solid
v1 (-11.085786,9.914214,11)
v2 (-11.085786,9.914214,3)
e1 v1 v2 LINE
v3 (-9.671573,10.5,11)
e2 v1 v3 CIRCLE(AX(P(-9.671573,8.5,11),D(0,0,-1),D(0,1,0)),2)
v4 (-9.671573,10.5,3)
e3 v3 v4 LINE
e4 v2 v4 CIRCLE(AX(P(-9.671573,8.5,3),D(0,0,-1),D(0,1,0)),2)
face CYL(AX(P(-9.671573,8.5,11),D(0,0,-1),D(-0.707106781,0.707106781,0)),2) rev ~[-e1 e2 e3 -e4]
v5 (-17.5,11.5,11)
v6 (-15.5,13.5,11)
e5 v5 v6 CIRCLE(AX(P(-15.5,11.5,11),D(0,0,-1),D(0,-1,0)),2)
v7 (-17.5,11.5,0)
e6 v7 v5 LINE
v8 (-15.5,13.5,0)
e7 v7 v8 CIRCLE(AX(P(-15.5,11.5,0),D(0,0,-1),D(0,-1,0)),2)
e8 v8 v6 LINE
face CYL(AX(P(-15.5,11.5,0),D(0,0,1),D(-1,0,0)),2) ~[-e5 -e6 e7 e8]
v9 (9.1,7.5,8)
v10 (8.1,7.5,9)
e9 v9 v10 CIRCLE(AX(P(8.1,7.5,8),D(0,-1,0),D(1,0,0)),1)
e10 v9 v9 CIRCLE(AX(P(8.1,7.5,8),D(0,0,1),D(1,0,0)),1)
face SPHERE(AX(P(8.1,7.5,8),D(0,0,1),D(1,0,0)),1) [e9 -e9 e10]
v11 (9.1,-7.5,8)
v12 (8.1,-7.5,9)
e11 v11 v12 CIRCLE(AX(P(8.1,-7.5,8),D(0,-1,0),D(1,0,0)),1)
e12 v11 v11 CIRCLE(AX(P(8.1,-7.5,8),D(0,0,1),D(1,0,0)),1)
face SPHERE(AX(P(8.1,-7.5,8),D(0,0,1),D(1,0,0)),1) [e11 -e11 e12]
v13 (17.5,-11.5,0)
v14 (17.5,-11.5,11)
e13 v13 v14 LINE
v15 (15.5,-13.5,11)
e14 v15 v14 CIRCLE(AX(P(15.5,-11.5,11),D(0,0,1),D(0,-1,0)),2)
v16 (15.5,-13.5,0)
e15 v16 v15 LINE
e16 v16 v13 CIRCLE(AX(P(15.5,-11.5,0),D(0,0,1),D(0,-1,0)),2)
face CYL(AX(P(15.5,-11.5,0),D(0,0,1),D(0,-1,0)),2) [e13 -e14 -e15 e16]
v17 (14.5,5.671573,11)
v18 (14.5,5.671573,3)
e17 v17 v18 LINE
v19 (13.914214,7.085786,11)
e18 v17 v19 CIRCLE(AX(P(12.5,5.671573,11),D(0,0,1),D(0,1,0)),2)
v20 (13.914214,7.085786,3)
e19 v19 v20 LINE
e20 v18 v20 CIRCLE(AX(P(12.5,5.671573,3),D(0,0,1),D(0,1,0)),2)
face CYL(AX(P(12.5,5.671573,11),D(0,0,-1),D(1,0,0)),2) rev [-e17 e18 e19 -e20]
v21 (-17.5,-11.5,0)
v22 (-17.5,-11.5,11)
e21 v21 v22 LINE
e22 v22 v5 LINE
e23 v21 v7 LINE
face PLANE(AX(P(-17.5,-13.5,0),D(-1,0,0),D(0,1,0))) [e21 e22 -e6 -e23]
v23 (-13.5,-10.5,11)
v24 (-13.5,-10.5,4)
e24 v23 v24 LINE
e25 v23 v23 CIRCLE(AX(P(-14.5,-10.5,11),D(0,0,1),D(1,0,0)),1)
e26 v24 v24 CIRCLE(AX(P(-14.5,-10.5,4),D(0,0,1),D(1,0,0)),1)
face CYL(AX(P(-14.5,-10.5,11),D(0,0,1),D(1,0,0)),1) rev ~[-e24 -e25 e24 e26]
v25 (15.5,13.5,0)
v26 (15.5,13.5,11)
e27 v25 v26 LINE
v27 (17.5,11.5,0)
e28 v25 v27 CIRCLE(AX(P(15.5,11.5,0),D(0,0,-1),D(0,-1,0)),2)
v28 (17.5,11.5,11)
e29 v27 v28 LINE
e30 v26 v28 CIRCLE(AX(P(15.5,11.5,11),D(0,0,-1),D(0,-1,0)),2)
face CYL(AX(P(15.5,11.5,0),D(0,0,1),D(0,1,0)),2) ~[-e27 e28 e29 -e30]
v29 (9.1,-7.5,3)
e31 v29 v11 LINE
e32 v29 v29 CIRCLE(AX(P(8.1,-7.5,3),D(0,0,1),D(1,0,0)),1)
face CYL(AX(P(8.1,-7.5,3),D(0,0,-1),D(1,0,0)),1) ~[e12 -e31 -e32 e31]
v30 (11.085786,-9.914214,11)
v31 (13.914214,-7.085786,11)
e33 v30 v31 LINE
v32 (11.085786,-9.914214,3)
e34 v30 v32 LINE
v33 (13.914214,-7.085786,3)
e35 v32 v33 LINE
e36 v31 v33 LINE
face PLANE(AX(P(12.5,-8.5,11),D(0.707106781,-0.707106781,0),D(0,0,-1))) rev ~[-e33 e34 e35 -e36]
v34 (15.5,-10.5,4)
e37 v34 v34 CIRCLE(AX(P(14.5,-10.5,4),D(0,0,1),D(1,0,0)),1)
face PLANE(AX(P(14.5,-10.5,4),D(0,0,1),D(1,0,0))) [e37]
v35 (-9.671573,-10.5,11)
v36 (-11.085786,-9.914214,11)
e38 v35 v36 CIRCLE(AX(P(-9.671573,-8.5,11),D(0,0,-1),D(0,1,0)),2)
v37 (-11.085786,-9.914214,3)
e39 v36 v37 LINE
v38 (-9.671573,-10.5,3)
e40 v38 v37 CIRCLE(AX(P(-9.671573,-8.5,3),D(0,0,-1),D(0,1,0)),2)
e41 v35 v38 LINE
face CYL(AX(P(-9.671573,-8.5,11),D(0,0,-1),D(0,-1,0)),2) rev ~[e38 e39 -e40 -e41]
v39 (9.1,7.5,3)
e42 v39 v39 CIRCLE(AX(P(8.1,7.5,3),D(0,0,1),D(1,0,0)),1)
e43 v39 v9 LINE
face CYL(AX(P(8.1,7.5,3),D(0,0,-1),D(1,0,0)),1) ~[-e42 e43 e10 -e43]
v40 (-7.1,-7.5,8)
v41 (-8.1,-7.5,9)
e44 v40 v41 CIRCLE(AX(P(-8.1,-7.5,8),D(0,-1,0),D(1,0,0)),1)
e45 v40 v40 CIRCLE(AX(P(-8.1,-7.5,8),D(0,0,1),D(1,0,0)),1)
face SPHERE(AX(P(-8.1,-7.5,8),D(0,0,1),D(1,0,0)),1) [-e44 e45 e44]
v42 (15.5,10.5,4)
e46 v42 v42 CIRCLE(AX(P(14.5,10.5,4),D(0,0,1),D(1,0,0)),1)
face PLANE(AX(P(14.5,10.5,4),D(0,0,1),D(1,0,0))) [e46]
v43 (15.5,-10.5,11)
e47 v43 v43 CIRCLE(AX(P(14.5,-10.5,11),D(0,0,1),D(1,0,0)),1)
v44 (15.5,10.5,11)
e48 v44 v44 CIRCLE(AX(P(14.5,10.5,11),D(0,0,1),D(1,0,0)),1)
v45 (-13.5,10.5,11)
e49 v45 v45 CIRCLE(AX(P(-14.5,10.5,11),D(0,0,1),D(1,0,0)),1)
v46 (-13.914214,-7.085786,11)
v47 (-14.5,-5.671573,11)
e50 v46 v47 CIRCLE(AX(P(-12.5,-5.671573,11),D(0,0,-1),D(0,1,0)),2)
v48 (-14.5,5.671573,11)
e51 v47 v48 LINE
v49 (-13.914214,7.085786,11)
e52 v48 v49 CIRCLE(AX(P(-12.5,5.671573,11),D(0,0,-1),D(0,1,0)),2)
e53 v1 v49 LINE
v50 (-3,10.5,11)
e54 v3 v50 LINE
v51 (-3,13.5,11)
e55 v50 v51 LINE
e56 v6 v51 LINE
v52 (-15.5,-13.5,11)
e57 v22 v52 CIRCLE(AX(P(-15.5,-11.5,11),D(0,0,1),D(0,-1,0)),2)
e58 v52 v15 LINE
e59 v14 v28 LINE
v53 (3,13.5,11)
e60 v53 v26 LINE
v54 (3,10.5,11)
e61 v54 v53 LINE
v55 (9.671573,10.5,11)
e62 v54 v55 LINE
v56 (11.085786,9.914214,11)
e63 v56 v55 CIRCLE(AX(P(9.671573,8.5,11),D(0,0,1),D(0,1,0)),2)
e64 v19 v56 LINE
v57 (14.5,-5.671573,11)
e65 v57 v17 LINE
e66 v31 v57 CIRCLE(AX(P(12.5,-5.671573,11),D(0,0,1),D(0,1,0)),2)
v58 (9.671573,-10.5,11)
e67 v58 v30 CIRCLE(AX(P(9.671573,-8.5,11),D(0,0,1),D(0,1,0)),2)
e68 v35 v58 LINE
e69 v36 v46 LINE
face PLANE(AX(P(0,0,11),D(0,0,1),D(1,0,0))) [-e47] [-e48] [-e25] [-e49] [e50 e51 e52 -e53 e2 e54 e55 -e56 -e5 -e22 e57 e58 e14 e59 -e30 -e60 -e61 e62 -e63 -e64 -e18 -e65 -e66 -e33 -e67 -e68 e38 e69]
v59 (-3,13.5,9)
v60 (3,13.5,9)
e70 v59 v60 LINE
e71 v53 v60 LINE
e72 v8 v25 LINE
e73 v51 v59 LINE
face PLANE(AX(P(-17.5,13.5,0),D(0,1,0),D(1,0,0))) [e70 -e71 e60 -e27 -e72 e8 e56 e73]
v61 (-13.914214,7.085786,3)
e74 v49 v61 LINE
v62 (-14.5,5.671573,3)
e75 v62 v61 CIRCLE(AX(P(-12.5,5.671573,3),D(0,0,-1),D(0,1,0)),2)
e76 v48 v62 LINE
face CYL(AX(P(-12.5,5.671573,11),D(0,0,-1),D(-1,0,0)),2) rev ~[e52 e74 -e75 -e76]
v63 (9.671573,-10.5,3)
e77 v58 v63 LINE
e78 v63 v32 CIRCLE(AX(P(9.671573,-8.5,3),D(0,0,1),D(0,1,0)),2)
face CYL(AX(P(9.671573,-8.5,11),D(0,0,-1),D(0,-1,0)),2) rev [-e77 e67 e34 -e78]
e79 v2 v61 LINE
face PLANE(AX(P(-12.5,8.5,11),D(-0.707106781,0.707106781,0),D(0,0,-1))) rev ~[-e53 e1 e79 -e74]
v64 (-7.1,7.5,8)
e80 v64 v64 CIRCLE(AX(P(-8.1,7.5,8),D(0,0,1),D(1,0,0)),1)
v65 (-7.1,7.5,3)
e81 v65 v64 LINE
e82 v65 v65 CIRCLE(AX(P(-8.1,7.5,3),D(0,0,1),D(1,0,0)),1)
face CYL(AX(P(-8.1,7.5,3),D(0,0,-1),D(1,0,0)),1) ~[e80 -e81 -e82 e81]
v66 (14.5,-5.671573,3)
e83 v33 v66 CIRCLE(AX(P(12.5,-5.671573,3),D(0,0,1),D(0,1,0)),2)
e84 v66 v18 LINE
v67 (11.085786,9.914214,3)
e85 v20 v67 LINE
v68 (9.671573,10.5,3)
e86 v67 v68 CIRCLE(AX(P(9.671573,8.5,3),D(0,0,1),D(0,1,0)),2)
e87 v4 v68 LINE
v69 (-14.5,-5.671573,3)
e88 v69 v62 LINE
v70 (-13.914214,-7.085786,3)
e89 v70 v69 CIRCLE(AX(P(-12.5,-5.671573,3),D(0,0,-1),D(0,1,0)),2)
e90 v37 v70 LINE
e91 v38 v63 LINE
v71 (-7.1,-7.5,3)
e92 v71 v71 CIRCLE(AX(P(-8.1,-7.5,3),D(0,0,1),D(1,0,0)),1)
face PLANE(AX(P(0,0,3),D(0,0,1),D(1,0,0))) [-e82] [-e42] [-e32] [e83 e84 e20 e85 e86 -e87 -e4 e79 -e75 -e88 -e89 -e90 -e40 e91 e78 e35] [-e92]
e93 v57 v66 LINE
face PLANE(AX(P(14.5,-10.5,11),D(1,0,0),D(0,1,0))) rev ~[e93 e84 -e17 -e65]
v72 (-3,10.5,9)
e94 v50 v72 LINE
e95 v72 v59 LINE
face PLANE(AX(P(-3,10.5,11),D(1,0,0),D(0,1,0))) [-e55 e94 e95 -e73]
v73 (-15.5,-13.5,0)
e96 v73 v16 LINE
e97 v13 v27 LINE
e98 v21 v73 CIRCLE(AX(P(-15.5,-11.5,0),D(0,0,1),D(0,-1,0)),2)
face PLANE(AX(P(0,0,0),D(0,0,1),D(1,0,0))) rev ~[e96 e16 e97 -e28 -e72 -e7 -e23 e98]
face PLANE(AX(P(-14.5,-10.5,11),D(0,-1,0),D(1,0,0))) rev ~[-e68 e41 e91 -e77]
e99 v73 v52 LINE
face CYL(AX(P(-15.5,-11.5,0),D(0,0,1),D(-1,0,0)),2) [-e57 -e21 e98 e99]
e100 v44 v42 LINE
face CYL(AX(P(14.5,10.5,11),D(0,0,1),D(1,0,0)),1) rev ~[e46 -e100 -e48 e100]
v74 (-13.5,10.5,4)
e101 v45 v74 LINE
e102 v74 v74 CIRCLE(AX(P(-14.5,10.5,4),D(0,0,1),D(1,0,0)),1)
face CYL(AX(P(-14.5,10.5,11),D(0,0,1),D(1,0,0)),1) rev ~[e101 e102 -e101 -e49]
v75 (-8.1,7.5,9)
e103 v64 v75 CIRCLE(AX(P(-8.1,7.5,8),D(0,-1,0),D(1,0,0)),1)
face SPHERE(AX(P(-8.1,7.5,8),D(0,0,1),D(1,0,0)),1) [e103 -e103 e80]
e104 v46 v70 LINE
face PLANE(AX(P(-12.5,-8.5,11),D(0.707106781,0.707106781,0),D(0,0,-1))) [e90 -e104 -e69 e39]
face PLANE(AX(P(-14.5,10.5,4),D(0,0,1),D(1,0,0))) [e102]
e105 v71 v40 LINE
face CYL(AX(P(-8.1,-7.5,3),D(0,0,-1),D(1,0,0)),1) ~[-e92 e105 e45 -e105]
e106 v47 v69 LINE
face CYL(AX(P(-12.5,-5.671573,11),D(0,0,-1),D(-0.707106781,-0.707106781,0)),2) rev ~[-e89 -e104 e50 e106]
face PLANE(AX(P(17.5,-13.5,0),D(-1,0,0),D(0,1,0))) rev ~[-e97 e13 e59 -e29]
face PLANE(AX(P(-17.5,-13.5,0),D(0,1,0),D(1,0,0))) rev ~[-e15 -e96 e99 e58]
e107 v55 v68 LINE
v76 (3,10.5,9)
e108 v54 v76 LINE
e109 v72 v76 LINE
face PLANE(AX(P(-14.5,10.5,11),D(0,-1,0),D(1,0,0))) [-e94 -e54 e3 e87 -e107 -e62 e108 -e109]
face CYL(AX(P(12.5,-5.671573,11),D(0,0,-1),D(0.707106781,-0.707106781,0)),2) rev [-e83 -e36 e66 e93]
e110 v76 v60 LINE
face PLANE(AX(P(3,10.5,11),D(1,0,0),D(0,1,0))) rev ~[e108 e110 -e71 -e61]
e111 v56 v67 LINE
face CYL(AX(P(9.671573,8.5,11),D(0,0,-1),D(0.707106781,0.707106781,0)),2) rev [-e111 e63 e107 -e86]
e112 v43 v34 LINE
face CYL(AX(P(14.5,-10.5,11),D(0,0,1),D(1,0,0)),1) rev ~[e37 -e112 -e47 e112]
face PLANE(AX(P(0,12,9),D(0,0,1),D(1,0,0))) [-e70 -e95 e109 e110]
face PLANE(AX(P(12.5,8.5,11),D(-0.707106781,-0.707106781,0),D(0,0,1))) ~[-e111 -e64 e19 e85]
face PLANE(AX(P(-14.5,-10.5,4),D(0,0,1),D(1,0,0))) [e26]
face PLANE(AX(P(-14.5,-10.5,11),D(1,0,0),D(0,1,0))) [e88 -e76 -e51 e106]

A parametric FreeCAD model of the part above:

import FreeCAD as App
import Part
import Sketcher

V = App.Vector
Q = App.Units.Quantity


def edges_at(feature, points):
    """Names of the edges that pass closest to the given points."""
    edges = feature.Shape.Edges
    near = lambda p: min(range(len(edges)), key=lambda i: edges[i].distToShape(Part.Vertex(*p))[0])
    return sorted({f"Edge{near(p) + 1}" for p in points})


def add_polygon(sketch, points):
    """Adds a closed chain of lines whose ends are joined by coincident constraints."""
    first, n = sketch.GeometryCount, len(points)
    for a, b in zip(points, points[1:] + points[:1]):
        sketch.addGeometry(Part.LineSegment(App.Vector(*a, 0), App.Vector(*b, 0)), False)
    for i in range(n):
        sketch.addConstraint(Sketcher.Constraint("Coincident", first + i, 2, first + (i + 1) % n, 1))

doc = App.newDocument("Part")
body = doc.addObject("PartDesign::Body", "Body")

sketch1 = body.newObject("Sketcher::SketchObject", "Sketch")
sketch1.AttachmentSupport = (doc.getObject("XY_Plane"), [""])
sketch1.MapMode = "FlatFace"
add_polygon(sketch1, [(-18, 14), (-18, -14), (18, -14), (18, 14)])
sketch1.addConstraint(Sketcher.Constraint("Vertical", 0))
sketch1.addConstraint(Sketcher.Constraint("Horizontal", 1))
sketch1.addConstraint(Sketcher.Constraint("Vertical", 2))
sketch1.addConstraint(Sketcher.Constraint("Horizontal", 3))
sketch1.addConstraint(Sketcher.Constraint("Symmetric", 0, 2, 2, 2, -1, 1))
sketch1.addConstraint(Sketcher.Constraint("DistanceX", 1, 1, 1, 2, Q("35 mm")))
sketch1.addConstraint(Sketcher.Constraint("DistanceY", 0, 2, 0, 1, Q("27 mm")))
pad1 = body.newObject("PartDesign::Pad", "Pad")
pad1.Profile = sketch1
pad1.Length = 11

sketch2 = body.newObject("Sketcher::SketchObject", "Sketch001")
sketch2.AttachmentSupport = (doc.getObject("XY_Plane"), [""])
sketch2.MapMode = "FlatFace"
sketch2.AttachmentOffset = App.Placement(V(0, 0, 11), App.Rotation())
add_polygon(sketch2, [(-14, 10), (-14, -10), (14, -10), (14, 10)])
sketch2.addConstraint(Sketcher.Constraint("Vertical", 0))
sketch2.addConstraint(Sketcher.Constraint("Horizontal", 1))
sketch2.addConstraint(Sketcher.Constraint("Vertical", 2))
sketch2.addConstraint(Sketcher.Constraint("Horizontal", 3))
sketch2.addConstraint(Sketcher.Constraint("Symmetric", 0, 2, 2, 2, -1, 1))
sketch2.addConstraint(Sketcher.Constraint("DistanceX", 1, 1, 1, 2, Q("29 mm")))
sketch2.addConstraint(Sketcher.Constraint("DistanceY", 0, 2, 0, 1, Q("21 mm")))
pocket1 = body.newObject("PartDesign::Pocket", "Pocket")
pocket1.Profile = sketch2
pocket1.Length = 8
doc.recompute()

chamfer = body.newObject("PartDesign::Chamfer", "Chamfer")
chamfer.Base = (pocket1, edges_at(pocket1, [
    (-14.5, -10.5, 7),
    (-14.5, 10.5, 7),
    (14.5, 10.5, 7),
    (14.5, -10.5, 7),
]))
chamfer.Size = 4

sketch3 = body.newObject("Sketcher::SketchObject", "Sketch002")
sketch3.AttachmentSupport = (doc.getObject("XY_Plane"), [""])
sketch3.MapMode = "FlatFace"
sketch3.AttachmentOffset = App.Placement(V(0, 0, 11), App.Rotation())
sketch3.addGeometry(Part.Circle(V(-14.5, 10.5, 0), V(0, 0, 1), 1), False)
sketch3.addGeometry(Part.Circle(V(14.5, 10.5, 0), V(0, 0, 1), 1), False)
sketch3.addGeometry(Part.Circle(V(14.5, -10.5, 0), V(0, 0, 1), 1), False)
sketch3.addGeometry(Part.Circle(V(-14.5, -10.5, 0), V(0, 0, 1), 1), False)
sketch3.addConstraint(Sketcher.Constraint("Equal", 0, 1))
sketch3.addConstraint(Sketcher.Constraint("Equal", 1, 2))
sketch3.addConstraint(Sketcher.Constraint("Equal", 2, 3))
sketch3.addConstraint(Sketcher.Constraint("Symmetric", 0, 3, 2, 3, -1, 1))
sketch3.addConstraint(Sketcher.Constraint("Symmetric", 1, 3, 3, 3, -1, 1))
sketch3.addConstraint(Sketcher.Constraint("Symmetric", 0, 3, 1, 3, -2))
sketch3.addConstraint(Sketcher.Constraint("Diameter", 0, Q("2 mm")))
sketch3.addConstraint(Sketcher.Constraint("DistanceX", 0, 3, 1, 3, Q("29 mm")))
sketch3.addConstraint(Sketcher.Constraint("DistanceY", 2, 3, 1, 3, Q("21 mm")))
pocket2 = body.newObject("PartDesign::Pocket", "Pocket001")
pocket2.Profile = sketch3
pocket2.Length = 7

sketch4 = body.newObject("Sketcher::SketchObject", "Sketch003")
sketch4.AttachmentSupport = (doc.getObject("XY_Plane"), [""])
sketch4.MapMode = "FlatFace"
sketch4.AttachmentOffset = App.Placement(V(0, 0, 3), App.Rotation())
sketch4.addGeometry(Part.Circle(V(-8.1, 7.5, 0), V(0, 0, 1), 1), False)
sketch4.addGeometry(Part.Circle(V(8.1, 7.5, 0), V(0, 0, 1), 1), False)
sketch4.addGeometry(Part.Circle(V(-8.1, -7.5, 0), V(0, 0, 1), 1), False)
sketch4.addGeometry(Part.Circle(V(8.1, -7.5, 0), V(0, 0, 1), 1), False)
sketch4.addConstraint(Sketcher.Constraint("Equal", 0, 1))
sketch4.addConstraint(Sketcher.Constraint("Equal", 1, 2))
sketch4.addConstraint(Sketcher.Constraint("Equal", 2, 3))
sketch4.addConstraint(Sketcher.Constraint("Symmetric", 1, 3, 2, 3, -1, 1))
sketch4.addConstraint(Sketcher.Constraint("Symmetric", 0, 3, 3, 3, -1, 1))
sketch4.addConstraint(Sketcher.Constraint("Symmetric", 0, 3, 1, 3, -2))
sketch4.addConstraint(Sketcher.Constraint("Diameter", 0, Q("2 mm")))
sketch4.addConstraint(Sketcher.Constraint("DistanceY", 2, 3, 0, 3, Q("15 mm")))
sketch4.addConstraint(Sketcher.Constraint("DistanceX", 0, 3, -1, 1, Q("8.1 mm")))
pad2 = body.newObject("PartDesign::Pad", "Pad001")
pad2.Profile = sketch4
pad2.Length = 6
doc.recompute()

fillet = body.newObject("PartDesign::Fillet", "Fillet")
fillet.Base = (pad2, edges_at(pad2, [
    (-9.1, 7.5, 9),
    (7.1, 7.5, 9),
    (-9.1, -7.5, 9),
    (7.1, -7.5, 9),
]))
fillet.Radius = 1
doc.recompute()

fillet2 = body.newObject("PartDesign::Fillet", "Fillet001")
fillet2.Base = (fillet, edges_at(fillet, [
    (-17.5, 13.5, 5.5),
    (17.5, 13.5, 5.5),
    (17.5, -13.5, 5.5),
    (-17.5, -13.5, 5.5),
]))
fillet2.Radius = 2
doc.recompute()

fillet3 = body.newObject("PartDesign::Fillet", "Fillet002")
fillet3.Base = (fillet2, edges_at(fillet2, [
    (10.5, -10.5, 7),
    (-10.5, -10.5, 7),
    (-14.5, 6.5, 7),
    (-14.5, -6.5, 7),
    (14.5, 6.5, 7),
    (14.5, -6.5, 7),
    (-10.5, 10.5, 7),
    (10.5, 10.5, 7),
]))
fillet3.Radius = 2

sketch5 = body.newObject("Sketcher::SketchObject", "Sketch004")
sketch5.AttachmentSupport = (doc.getObject("XY_Plane"), [""])
sketch5.MapMode = "FlatFace"
sketch5.AttachmentOffset = App.Placement(V(0, 0, 11), App.Rotation())
add_polygon(sketch5, [(-3, 13.5), (-3, 10.5), (3, 10.5), (3, 13.5)])
sketch5.addConstraint(Sketcher.Constraint("Vertical", 0))
sketch5.addConstraint(Sketcher.Constraint("Horizontal", 1))
sketch5.addConstraint(Sketcher.Constraint("Vertical", 2))
sketch5.addConstraint(Sketcher.Constraint("Horizontal", 3))
sketch5.addConstraint(Sketcher.Constraint("DistanceX", 1, 1, 1, 2, Q("6 mm")))
sketch5.addConstraint(Sketcher.Constraint("DistanceY", 0, 2, 0, 1, Q("3 mm")))
sketch5.addConstraint(Sketcher.Constraint("DistanceX", 0, 2, -1, 1, Q("3 mm")))
sketch5.addConstraint(Sketcher.Constraint("DistanceY", -1, 1, 0, 2, Q("10.5 mm")))
pocket3 = body.newObject("PartDesign::Pocket", "Pocket002")
pocket3.Profile = sketch5
pocket3.Length = 2

doc.recompute()
